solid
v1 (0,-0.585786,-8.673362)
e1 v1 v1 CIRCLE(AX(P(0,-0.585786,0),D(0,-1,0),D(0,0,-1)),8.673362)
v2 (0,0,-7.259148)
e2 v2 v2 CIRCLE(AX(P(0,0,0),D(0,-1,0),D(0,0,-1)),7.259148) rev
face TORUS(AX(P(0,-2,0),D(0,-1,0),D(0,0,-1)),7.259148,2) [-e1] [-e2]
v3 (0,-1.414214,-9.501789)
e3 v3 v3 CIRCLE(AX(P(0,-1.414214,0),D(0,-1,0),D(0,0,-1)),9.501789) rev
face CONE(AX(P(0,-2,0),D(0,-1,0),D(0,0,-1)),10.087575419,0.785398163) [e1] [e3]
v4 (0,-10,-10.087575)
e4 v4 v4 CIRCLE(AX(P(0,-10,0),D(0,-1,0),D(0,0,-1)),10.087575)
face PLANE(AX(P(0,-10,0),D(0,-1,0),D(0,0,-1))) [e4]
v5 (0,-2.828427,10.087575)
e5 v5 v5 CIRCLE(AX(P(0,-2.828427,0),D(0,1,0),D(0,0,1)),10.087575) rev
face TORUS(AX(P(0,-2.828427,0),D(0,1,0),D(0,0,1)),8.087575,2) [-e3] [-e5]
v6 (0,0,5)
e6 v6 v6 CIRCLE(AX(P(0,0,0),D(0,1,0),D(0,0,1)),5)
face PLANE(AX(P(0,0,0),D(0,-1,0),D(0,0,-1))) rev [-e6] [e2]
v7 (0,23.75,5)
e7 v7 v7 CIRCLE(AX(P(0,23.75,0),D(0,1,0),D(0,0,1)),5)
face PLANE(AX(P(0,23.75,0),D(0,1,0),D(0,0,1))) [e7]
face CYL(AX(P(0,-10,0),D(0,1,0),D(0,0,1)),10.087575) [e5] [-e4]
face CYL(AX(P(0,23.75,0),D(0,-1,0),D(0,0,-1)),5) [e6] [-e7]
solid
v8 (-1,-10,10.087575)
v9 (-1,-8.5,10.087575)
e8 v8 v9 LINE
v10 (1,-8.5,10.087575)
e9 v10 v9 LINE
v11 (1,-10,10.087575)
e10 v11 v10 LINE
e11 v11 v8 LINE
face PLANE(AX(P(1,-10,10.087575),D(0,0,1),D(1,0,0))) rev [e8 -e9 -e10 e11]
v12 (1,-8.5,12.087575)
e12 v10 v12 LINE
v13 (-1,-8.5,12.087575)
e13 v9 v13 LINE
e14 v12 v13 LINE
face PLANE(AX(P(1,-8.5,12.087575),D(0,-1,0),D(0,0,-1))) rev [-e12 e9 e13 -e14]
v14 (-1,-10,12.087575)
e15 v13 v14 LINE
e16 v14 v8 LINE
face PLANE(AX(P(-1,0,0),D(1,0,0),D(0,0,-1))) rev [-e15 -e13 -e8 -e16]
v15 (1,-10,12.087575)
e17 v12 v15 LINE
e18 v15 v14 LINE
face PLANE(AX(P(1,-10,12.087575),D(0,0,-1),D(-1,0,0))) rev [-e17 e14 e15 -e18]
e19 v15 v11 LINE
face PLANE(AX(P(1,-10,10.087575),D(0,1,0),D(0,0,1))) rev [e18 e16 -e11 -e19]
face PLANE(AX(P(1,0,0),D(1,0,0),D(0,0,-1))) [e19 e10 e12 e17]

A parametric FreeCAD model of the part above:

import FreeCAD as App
import Part
import Sketcher
Q = App.Units.Quantity


def edges_at(feature, points):
    """Names of the edges that pass closest to the given points."""
    edges = feature.Shape.Edges
    near = lambda p: min(range(len(edges)), key=lambda i: edges[i].distToShape(Part.Vertex(*p))[0])
    return sorted({f"Edge{near(p) + 1}" for p in points})


def add_polygon(sketch, points):
    """Adds a closed chain of lines whose ends are joined by coincident constraints."""
    first, n = sketch.GeometryCount, len(points)
    for a, b in zip(points, points[1:] + points[:1]):
        sketch.addGeometry(Part.LineSegment(App.Vector(*a, 0), App.Vector(*b, 0)), False)
    for i in range(n):
        sketch.addConstraint(Sketcher.Constraint("Coincident", first + i, 2, first + (i + 1) % n, 1))

doc = App.newDocument("Part")
body = doc.addObject("PartDesign::Body", "Body")

sketch1 = doc.addObject("Sketcher::SketchObject", "Sketch")
body.addObject(sketch1)
sketch1.AttachmentSupport = (doc.XZ_Plane, [""])
sketch1.MapMode = "FlatFace"
sketch1.addGeometry(Part.Circle(App.Vector(0, 0, 0), App.Vector(0, 0, 1), 5), False)
sketch1.addConstraint([
    Sketcher.Constraint("Coincident", 0, 3, -1, 1),
    Sketcher.Constraint("Diameter", 0, Q("10 mm")),
])
pad1 = doc.addObject("PartDesign::Pad", "Pad")
body.addObject(pad1)
pad1.Profile = sketch1
pad1.Length = 23.75
pad1.Reversed = True

sketch2 = doc.addObject("Sketcher::SketchObject", "Sketch001")
body.addObject(sketch2)
sketch2.AttachmentSupport = (doc.XZ_Plane, [""])
sketch2.MapMode = "FlatFace"
sketch2.addGeometry(Part.Circle(App.Vector(0, 0, 0), App.Vector(0, 0, 1), 10), False)
sketch2.addConstraint([
    Sketcher.Constraint("Coincident", 0, 3, -1, 1),
    Sketcher.Constraint("Diameter", 0, Q("20.175151 mm")),
])
pad2 = doc.addObject("PartDesign::Pad", "Pad001")
body.addObject(pad2)
pad2.Profile = sketch2
pad2.Length = 10
doc.recompute()

chamfer = doc.addObject("PartDesign::Chamfer", "Chamfer")
body.addObject(chamfer)
chamfer.Base = (pad2, edges_at(pad2, [(0, 0, 10.088)]))
chamfer.Size = 2
doc.recompute()

fillet = doc.addObject("PartDesign::Fillet", "Fillet")
body.addObject(fillet)
fillet.Base = (chamfer, edges_at(chamfer, [(0, 0, 8.088)]))
fillet.Radius = 2
doc.recompute()

fillet2 = doc.addObject("PartDesign::Fillet", "Fillet001")
body.addObject(fillet2)
fillet2.Base = (fillet, edges_at(fillet, [(0, -2, 10.088)]))
fillet2.Radius = 2
body2 = doc.addObject("PartDesign::Body", "Body001")

sketch3 = doc.addObject("Sketcher::SketchObject", "Sketch002")
body2.addObject(sketch3)
sketch3.AttachmentSupport = (doc.getObject("YZ_Plane001"), [""])
sketch3.MapMode = "FlatFace"
add_polygon(sketch3, [(-8.5, 12.1), (-10, 12.1), (-10, 10.1), (-8.5, 10.1)])
sketch3.addConstraint([
    Sketcher.Constraint("Horizontal", 0),
    Sketcher.Constraint("Vertical", 1),
    Sketcher.Constraint("Horizontal", 2),
    Sketcher.Constraint("Vertical", 3),
    Sketcher.Constraint("DistanceY", 1, 2, 1, 1, Q("2 mm")),
    Sketcher.Constraint("DistanceX", 0, 2, 0, 1, Q("1.5 mm")),
    Sketcher.Constraint("DistanceX", 0, 2, -1, 1, Q("10 mm")),
    Sketcher.Constraint("DistanceY", -1, 1, 0, 2, Q("12.087575 mm")),
])
pad3 = doc.addObject("PartDesign::Pad", "Pad002")
body2.addObject(pad3)
pad3.Profile = sketch3
pad3.Length = 2
pad3.Midplane = True

doc.recompute()
